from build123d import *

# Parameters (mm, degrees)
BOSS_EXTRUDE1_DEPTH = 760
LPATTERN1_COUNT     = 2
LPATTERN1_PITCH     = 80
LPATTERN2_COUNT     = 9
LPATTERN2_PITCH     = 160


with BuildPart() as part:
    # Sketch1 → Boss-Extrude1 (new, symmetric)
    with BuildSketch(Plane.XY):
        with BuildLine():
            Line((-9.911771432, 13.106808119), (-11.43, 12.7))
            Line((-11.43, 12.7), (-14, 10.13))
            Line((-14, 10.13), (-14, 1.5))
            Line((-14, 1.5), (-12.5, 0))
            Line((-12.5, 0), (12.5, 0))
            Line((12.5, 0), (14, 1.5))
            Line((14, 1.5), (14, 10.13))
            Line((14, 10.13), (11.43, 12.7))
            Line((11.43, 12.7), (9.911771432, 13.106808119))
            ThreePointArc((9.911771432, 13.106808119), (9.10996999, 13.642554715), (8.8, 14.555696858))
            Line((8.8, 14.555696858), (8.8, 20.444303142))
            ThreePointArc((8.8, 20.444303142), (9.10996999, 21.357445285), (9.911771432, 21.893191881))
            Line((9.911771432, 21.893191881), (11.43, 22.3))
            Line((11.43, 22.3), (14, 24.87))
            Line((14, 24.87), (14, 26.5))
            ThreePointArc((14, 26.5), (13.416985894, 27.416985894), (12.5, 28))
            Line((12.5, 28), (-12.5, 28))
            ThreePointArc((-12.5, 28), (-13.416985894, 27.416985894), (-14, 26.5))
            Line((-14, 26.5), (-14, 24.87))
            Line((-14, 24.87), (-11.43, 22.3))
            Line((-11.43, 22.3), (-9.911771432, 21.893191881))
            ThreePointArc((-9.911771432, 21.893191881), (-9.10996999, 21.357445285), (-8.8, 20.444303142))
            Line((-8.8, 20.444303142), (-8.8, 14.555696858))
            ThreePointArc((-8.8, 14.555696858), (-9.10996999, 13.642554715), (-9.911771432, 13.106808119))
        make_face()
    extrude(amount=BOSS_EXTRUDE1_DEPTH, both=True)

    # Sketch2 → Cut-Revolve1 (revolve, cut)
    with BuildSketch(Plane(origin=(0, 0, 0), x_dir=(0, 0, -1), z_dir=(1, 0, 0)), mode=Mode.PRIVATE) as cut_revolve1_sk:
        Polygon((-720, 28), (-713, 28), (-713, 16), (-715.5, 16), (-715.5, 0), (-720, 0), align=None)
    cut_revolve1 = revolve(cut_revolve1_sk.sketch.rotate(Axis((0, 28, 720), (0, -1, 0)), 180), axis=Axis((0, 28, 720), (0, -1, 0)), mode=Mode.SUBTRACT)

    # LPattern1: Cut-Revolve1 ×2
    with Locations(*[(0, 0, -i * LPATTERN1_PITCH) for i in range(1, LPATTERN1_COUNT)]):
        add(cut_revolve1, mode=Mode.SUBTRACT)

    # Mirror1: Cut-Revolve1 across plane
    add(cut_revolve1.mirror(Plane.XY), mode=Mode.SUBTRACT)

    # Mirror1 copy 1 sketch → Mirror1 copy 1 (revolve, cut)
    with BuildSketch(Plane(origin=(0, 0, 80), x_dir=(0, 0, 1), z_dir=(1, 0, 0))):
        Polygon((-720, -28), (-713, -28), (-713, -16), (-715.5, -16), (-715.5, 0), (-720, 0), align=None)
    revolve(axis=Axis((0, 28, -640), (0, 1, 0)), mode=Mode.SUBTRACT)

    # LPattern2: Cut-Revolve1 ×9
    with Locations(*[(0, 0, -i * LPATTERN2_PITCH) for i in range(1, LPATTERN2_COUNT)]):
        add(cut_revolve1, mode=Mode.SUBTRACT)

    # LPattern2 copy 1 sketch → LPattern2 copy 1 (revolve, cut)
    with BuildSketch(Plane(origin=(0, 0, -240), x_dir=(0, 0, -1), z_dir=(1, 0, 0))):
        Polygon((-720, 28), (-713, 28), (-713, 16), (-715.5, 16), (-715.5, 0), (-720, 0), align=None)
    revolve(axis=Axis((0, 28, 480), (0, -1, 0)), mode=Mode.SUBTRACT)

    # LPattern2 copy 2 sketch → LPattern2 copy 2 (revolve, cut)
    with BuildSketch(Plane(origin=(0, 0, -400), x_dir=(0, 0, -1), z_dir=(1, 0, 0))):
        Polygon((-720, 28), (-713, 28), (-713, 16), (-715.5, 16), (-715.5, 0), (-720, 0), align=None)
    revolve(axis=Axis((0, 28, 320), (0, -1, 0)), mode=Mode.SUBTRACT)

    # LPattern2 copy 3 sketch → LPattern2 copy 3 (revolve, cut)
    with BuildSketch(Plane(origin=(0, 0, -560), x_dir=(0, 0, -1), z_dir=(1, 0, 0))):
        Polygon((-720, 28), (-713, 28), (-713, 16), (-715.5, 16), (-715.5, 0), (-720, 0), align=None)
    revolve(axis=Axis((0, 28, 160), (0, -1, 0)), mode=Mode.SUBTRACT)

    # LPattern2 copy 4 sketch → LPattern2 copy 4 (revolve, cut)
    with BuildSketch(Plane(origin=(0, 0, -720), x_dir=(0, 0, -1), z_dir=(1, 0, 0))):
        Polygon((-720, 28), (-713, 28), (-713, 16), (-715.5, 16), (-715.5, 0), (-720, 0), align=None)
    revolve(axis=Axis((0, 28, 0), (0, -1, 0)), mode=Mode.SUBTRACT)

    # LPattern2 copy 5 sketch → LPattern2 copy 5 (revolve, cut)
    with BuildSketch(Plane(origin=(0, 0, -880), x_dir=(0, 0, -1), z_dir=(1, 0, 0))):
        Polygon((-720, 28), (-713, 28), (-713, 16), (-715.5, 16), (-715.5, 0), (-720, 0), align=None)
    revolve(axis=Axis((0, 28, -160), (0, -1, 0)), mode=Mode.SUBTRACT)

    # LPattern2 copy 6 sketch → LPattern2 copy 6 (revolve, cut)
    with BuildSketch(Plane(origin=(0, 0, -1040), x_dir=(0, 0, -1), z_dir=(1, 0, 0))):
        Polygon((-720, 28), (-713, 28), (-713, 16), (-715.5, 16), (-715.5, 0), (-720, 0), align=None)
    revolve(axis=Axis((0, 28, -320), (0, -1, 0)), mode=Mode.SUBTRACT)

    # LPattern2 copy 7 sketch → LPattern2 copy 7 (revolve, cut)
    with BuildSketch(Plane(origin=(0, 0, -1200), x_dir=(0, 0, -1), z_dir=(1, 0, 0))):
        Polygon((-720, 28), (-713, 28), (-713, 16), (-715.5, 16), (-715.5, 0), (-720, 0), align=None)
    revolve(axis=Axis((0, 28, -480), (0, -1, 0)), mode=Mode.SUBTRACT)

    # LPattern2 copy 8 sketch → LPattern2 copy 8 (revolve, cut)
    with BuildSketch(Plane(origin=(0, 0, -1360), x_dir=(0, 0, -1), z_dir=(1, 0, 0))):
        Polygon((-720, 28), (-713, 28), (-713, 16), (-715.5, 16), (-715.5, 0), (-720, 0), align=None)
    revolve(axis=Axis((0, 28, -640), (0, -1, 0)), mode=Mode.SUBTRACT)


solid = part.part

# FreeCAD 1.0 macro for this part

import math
import FreeCAD as App
import Part
import Sketcher

V = App.Vector
Q = App.Units.Quantity

doc = App.newDocument("Part")
body = doc.addObject("PartDesign::Body", "Body")

# Sketch on XY plane
sketch1 = body.newObject("Sketcher::SketchObject", "Sketch")
sketch1.AttachmentSupport = (doc.getObject("XY_Plane"), [""])
sketch1.MapMode = "FlatFace"
sketch1.addGeometry([
    Part.LineSegment(V(-9.911771, 13.106808, 0), V(-11.43, 12.7, 0)),  # 0
    Part.LineSegment(V(-11.43, 12.7, 0), V(-14, 10.13, 0)),  # 1
    Part.LineSegment(V(-14, 10.13, 0), V(-14, 1.5, 0)),  # 2
    Part.LineSegment(V(-14, 1.5, 0), V(-12.5, 0, 0)),  # 3
    Part.LineSegment(V(-12.5, 0, 0), V(12.5, 0, 0)),  # 4
    Part.LineSegment(V(12.5, 0, 0), V(14, 1.5, 0)),  # 5
    Part.LineSegment(V(14, 1.5, 0), V(14, 10.13, 0)),  # 6
    Part.LineSegment(V(14, 10.13, 0), V(11.43, 12.7, 0)),  # 7
    Part.LineSegment(V(11.43, 12.7, 0), V(9.911771, 13.106808, 0)),  # 8
    Part.ArcOfCircle(Part.Circle(V(10.3, 14.555697, 0), V(0, 0, 1), 1.5), math.radians(-180), math.radians(-105)),  # 9
    Part.LineSegment(V(8.8, 14.555697, 0), V(8.8, 20.444303, 0)),  # 10
    Part.ArcOfCircle(Part.Circle(V(10.3, 20.444303, 0), V(0, 0, 1), 1.5), math.radians(105), math.radians(180)),  # 11
    Part.LineSegment(V(9.911771, 21.893192, 0), V(11.43, 22.3, 0)),  # 12
    Part.LineSegment(V(11.43, 22.3, 0), V(14, 24.87, 0)),  # 13
    Part.LineSegment(V(14, 24.87, 0), V(14, 26.5, 0)),  # 14
    Part.ArcOfCircle(Part.Circle(V(11.649219, 25.649219, 0), V(0, 0, 1), 2.5), math.radians(19.89591), math.radians(70.10409)),  # 15
    Part.LineSegment(V(12.5, 28, 0), V(-12.5, 28, 0)),  # 16
    Part.ArcOfCircle(Part.Circle(V(-11.649219, 25.649219, 0), V(0, 0, 1), 2.5), math.radians(109.89591), math.radians(160.10409)),  # 17
    Part.LineSegment(V(-14, 26.5, 0), V(-14, 24.87, 0)),  # 18
    Part.LineSegment(V(-14, 24.87, 0), V(-11.43, 22.3, 0)),  # 19
    Part.LineSegment(V(-11.43, 22.3, 0), V(-9.911771, 21.893192, 0)),  # 20
    Part.ArcOfCircle(Part.Circle(V(-10.3, 20.444303, 0), V(0, 0, 1), 1.5), math.radians(0), math.radians(75)),  # 21
    Part.LineSegment(V(-8.8, 20.444303, 0), V(-8.8, 14.555697, 0)),  # 22
    Part.ArcOfCircle(Part.Circle(V(-10.3, 14.555697, 0), V(0, 0, 1), 1.5), math.radians(-75), math.radians(0)),  # 23
], False)
sketch1.addConstraint([
    Sketcher.Constraint("Coincident", 0, 2, 1, 1),
    Sketcher.Constraint("Coincident", 1, 2, 2, 1),
    Sketcher.Constraint("Coincident", 2, 2, 3, 1),
    Sketcher.Constraint("Coincident", 3, 2, 4, 1),
    Sketcher.Constraint("Coincident", 4, 2, 5, 1),
    Sketcher.Constraint("Coincident", 5, 2, 6, 1),
    Sketcher.Constraint("Coincident", 6, 2, 7, 1),
    Sketcher.Constraint("Coincident", 7, 2, 8, 1),
    Sketcher.Constraint("Tangent", 8, 2, 9, 2),
    Sketcher.Constraint("Tangent", 9, 1, 10, 1),
    Sketcher.Constraint("Tangent", 10, 2, 11, 2),
    Sketcher.Constraint("Tangent", 11, 1, 12, 1),
    Sketcher.Constraint("Coincident", 12, 2, 13, 1),
    Sketcher.Constraint("Coincident", 13, 2, 14, 1),
    Sketcher.Constraint("Coincident", 14, 2, 15, 1),
    Sketcher.Constraint("Coincident", 15, 2, 16, 1),
    Sketcher.Constraint("Coincident", 16, 2, 17, 1),
    Sketcher.Constraint("Coincident", 17, 2, 18, 1),
    Sketcher.Constraint("Coincident", 18, 2, 19, 1),
    Sketcher.Constraint("Coincident", 19, 2, 20, 1),
    Sketcher.Constraint("Tangent", 20, 2, 21, 2),
    Sketcher.Constraint("Tangent", 21, 1, 22, 1),
    Sketcher.Constraint("Tangent", 22, 2, 23, 2),
    Sketcher.Constraint("Tangent", 23, 1, 0, 1),
    Sketcher.Constraint("Vertical", 2),
    Sketcher.Constraint("Horizontal", 4),
    Sketcher.Constraint("Vertical", 6),
    Sketcher.Constraint("Vertical", 10),
    Sketcher.Constraint("Vertical", 14),
    Sketcher.Constraint("Horizontal", 16),
    Sketcher.Constraint("Vertical", 18),
    Sketcher.Constraint("Vertical", 22),
    Sketcher.Constraint("Equal", 9, 11),
    Sketcher.Constraint("Equal", 15, 17),
    Sketcher.Constraint("Equal", 11, 21),
    Sketcher.Constraint("Equal", 21, 23),
    Sketcher.Constraint("Symmetric", 3, 2, 4, 2, -1, 1),
    Sketcher.Constraint("Symmetric", 15, 3, 17, 3, -2),
    Sketcher.Constraint("Symmetric", 11, 3, 21, 3, -2),
    Sketcher.Constraint("Symmetric", 2, 2, 5, 2, -2),
    Sketcher.Constraint("Symmetric", 0, 2, 7, 2, -2),
    Sketcher.Constraint("Symmetric", 13, 2, 18, 2, -2),
    Sketcher.Constraint("Symmetric", 12, 2, 19, 2, -2),
    Sketcher.Constraint("Perpendicular", 1, 3),
    Sketcher.Constraint("Perpendicular", 3, 5),
    Sketcher.Constraint("Perpendicular", 5, 7),
    Sketcher.Constraint("Parallel", 0, 12),
    Sketcher.Constraint("Perpendicular", 7, 13),
    Sketcher.Constraint("Parallel", 8, 20),
    Sketcher.Constraint("Vertical", 7, 2, 12, 2),
    Sketcher.Constraint("Vertical", 6, 2, 13, 2),
    Sketcher.Constraint("Vertical", 4, 2, 15, 2),
    Sketcher.Constraint("Radius", 9, Q("1.5 mm")),
    Sketcher.Constraint("Radius", 15, Q("2.5 mm")),
    Sketcher.Constraint("DistanceX", 4, 1, 4, 2, Q("25 mm")),
    Sketcher.Constraint("Angle", 0, Q("-165 deg")),
    Sketcher.Constraint("DistanceX", 1, 2, -1, 1, Q("14 mm")),
    Sketcher.Constraint("DistanceY", -1, 1, 15, 2, Q("28 mm")),
    Sketcher.Constraint("DistanceY", 2, 2, 2, 1, Q("8.63 mm")),
    Sketcher.Constraint("DistanceY", 14, 1, 14, 2, Q("1.63 mm")),
    Sketcher.Constraint("DistanceX", -1, 1, 9, 3, Q("10.3 mm")),
    Sketcher.Constraint("DistanceY", -1, 1, 0, 2, Q("12.7 mm")),
    Sketcher.Constraint("DistanceY", -1, 1, 12, 2, Q("22.3 mm")),
])
pad1 = body.newObject("PartDesign::Pad", "Pad")
pad1.Profile = sketch1
pad1.Length = 1520
pad1.Midplane = True

# Sketch on YZ plane
sketch2 = body.newObject("Sketcher::SketchObject", "Sketch001")
sketch2.AttachmentSupport = (doc.getObject("YZ_Plane"), [""])
sketch2.MapMode = "FlatFace"
sketch2.addGeometry([
    Part.LineSegment(V(28, 713, 0), V(28, 720, 0)),  # 0
    Part.LineSegment(V(28, 720, 0), V(0, 720, 0)),  # 1
    Part.LineSegment(V(0, 720, 0), V(0, 715.5, 0)),  # 2
    Part.LineSegment(V(0, 715.5, 0), V(16, 715.5, 0)),  # 3
    Part.LineSegment(V(16, 715.5, 0), V(16, 713, 0)),  # 4
    Part.LineSegment(V(16, 713, 0), V(28, 713, 0)),  # 5
], False)
sketch2.addGeometry(Part.LineSegment(V(28, 720, 0), V(0, 720, 0)), True)  # axis
sketch2.addConstraint([
    Sketcher.Constraint("Coincident", 0, 2, 1, 1),
    Sketcher.Constraint("Coincident", 1, 2, 2, 1),
    Sketcher.Constraint("Coincident", 2, 2, 3, 1),
    Sketcher.Constraint("Coincident", 3, 2, 4, 1),
    Sketcher.Constraint("Coincident", 4, 2, 5, 1),
    Sketcher.Constraint("Coincident", 5, 2, 0, 1),
    Sketcher.Constraint("Vertical", 0),
    Sketcher.Constraint("Horizontal", 1),
    Sketcher.Constraint("Vertical", 2),
    Sketcher.Constraint("Horizontal", 3),
    Sketcher.Constraint("Vertical", 4),
    Sketcher.Constraint("Horizontal", 5),
    Sketcher.Constraint("Horizontal", 6),
    Sketcher.Constraint("Coincident", 6, 1, 0, 2),
    Sketcher.Constraint("PointOnObject", 1, 2, -2),
    Sketcher.Constraint("PointOnObject", 6, 2, -2),
    Sketcher.Constraint("DistanceX", 1, 2, 1, 1, Q("28 mm")),
    Sketcher.Constraint("DistanceX", 3, 1, 3, 2, Q("16 mm")),
    Sketcher.Constraint("DistanceY", 0, 1, 0, 2, Q("7 mm")),
    Sketcher.Constraint("DistanceY", 2, 2, 2, 1, Q("4.5 mm")),
    Sketcher.Constraint("DistanceY", -1, 1, 0, 2, Q("720 mm")),
])
groove = body.newObject("PartDesign::Groove", "Groove")
groove.Profile = sketch2
groove.ReferenceAxis = (sketch2, ["Axis0"])
groove.Angle = 360
doc.recompute()

linearpattern = body.newObject("PartDesign::LinearPattern", "LinearPattern")
linearpattern.Originals = [groove]
linearpattern.Direction = (doc.getObject("Z_Axis"), [""])
linearpattern.Mode = "offset"
linearpattern.Offset = 80
linearpattern.Occurrences = 2
linearpattern.Reversed = True
body.Tip = linearpattern
doc.recompute()

mirrored = body.newObject("PartDesign::Mirrored", "Mirrored")
mirrored.Originals = [groove]
mirrored.MirrorPlane = (doc.getObject("XY_Plane"), [""])
body.Tip = mirrored

# Sketch on YZ plane
sketch3 = body.newObject("Sketcher::SketchObject", "Sketch002")
sketch3.AttachmentSupport = (doc.getObject("YZ_Plane"), [""])
sketch3.MapMode = "FlatFace"
sketch3.addGeometry([
    Part.LineSegment(V(28, -640, 0), V(28, -633, 0)),  # 0
    Part.LineSegment(V(28, -633, 0), V(16, -633, 0)),  # 1
    Part.LineSegment(V(16, -633, 0), V(16, -635.5, 0)),  # 2
    Part.LineSegment(V(16, -635.5, 0), V(0, -635.5, 0)),  # 3
    Part.LineSegment(V(0, -635.5, 0), V(0, -640, 0)),  # 4
    Part.LineSegment(V(0, -640, 0), V(28, -640, 0)),  # 5
], False)
sketch3.addGeometry(Part.LineSegment(V(0, -640, 0), V(28, -640, 0)), True)  # axis
sketch3.addConstraint([
    Sketcher.Constraint("Coincident", 0, 2, 1, 1),
    Sketcher.Constraint("Coincident", 1, 2, 2, 1),
    Sketcher.Constraint("Coincident", 2, 2, 3, 1),
    Sketcher.Constraint("Coincident", 3, 2, 4, 1),
    Sketcher.Constraint("Coincident", 4, 2, 5, 1),
    Sketcher.Constraint("Coincident", 5, 2, 0, 1),
    Sketcher.Constraint("Vertical", 0),
    Sketcher.Constraint("Horizontal", 1),
    Sketcher.Constraint("Vertical", 2),
    Sketcher.Constraint("Horizontal", 3),
    Sketcher.Constraint("Vertical", 4),
    Sketcher.Constraint("Horizontal", 5),
    Sketcher.Constraint("Horizontal", 6),
    Sketcher.Constraint("Coincident", 6, 1, 4, 2),
    Sketcher.Constraint("PointOnObject", 3, 2, -2),
    Sketcher.Constraint("Vertical", 0, 2, 6, 2),
    Sketcher.Constraint("DistanceX", 1, 2, 1, 1, Q("12 mm")),
    Sketcher.Constraint("DistanceX", 3, 2, 3, 1, Q("16 mm")),
    Sketcher.Constraint("DistanceY", 0, 1, 0, 2, Q("7 mm")),
    Sketcher.Constraint("DistanceY", 2, 2, 2, 1, Q("2.5 mm")),
    Sketcher.Constraint("DistanceY", 0, 2, -1, 1, Q("633 mm")),
])
groove2 = body.newObject("PartDesign::Groove", "Groove001")
groove2.Profile = sketch3
groove2.ReferenceAxis = (sketch3, ["Axis0"])
groove2.Angle = 360
doc.recompute()

linearpattern2 = body.newObject("PartDesign::LinearPattern", "LinearPattern001")
linearpattern2.Originals = [groove]
linearpattern2.Direction = (doc.getObject("Z_Axis"), [""])
linearpattern2.Mode = "offset"
linearpattern2.Offset = 160
linearpattern2.Occurrences = 9
linearpattern2.Reversed = True
body.Tip = linearpattern2

# Sketch on YZ plane
sketch4 = body.newObject("Sketcher::SketchObject", "Sketch003")
sketch4.AttachmentSupport = (doc.getObject("YZ_Plane"), [""])
sketch4.MapMode = "FlatFace"
sketch4.addGeometry([
    Part.LineSegment(V(28, 473, 0), V(28, 480, 0)),  # 0
    Part.LineSegment(V(28, 480, 0), V(0, 480, 0)),  # 1
    Part.LineSegment(V(0, 480, 0), V(0, 475.5, 0)),  # 2
    Part.LineSegment(V(0, 475.5, 0), V(16, 475.5, 0)),  # 3
    Part.LineSegment(V(16, 475.5, 0), V(16, 473, 0)),  # 4
    Part.LineSegment(V(16, 473, 0), V(28, 473, 0)),  # 5
], False)
sketch4.addGeometry(Part.LineSegment(V(28, 480, 0), V(0, 480, 0)), True)  # axis
sketch4.addConstraint([
    Sketcher.Constraint("Coincident", 0, 2, 1, 1),
    Sketcher.Constraint("Coincident", 1, 2, 2, 1),
    Sketcher.Constraint("Coincident", 2, 2, 3, 1),
    Sketcher.Constraint("Coincident", 3, 2, 4, 1),
    Sketcher.Constraint("Coincident", 4, 2, 5, 1),
    Sketcher.Constraint("Coincident", 5, 2, 0, 1),
    Sketcher.Constraint("Vertical", 0),
    Sketcher.Constraint("Horizontal", 1),
    Sketcher.Constraint("Vertical", 2),
    Sketcher.Constraint("Horizontal", 3),
    Sketcher.Constraint("Vertical", 4),
    Sketcher.Constraint("Horizontal", 5),
    Sketcher.Constraint("Horizontal", 6),
    Sketcher.Constraint("Coincident", 6, 1, 0, 2),
    Sketcher.Constraint("PointOnObject", 1, 2, -2),
    Sketcher.Constraint("PointOnObject", 6, 2, -2),
    Sketcher.Constraint("DistanceX", 1, 2, 1, 1, Q("28 mm")),
    Sketcher.Constraint("DistanceX", 3, 1, 3, 2, Q("16 mm")),
    Sketcher.Constraint("DistanceY", 0, 1, 0, 2, Q("7 mm")),
    Sketcher.Constraint("DistanceY", 2, 2, 2, 1, Q("4.5 mm")),
    Sketcher.Constraint("DistanceY", -1, 1, 0, 2, Q("480 mm")),
])
groove3 = body.newObject("PartDesign::Groove", "Groove002")
groove3.Profile = sketch4
groove3.ReferenceAxis = (sketch4, ["Axis0"])
groove3.Angle = 360

# Sketch on YZ plane
sketch5 = body.newObject("Sketcher::SketchObject", "Sketch004")
sketch5.AttachmentSupport = (doc.getObject("YZ_Plane"), [""])
sketch5.MapMode = "FlatFace"
sketch5.addGeometry([
    Part.LineSegment(V(28, 313, 0), V(28, 320, 0)),  # 0
    Part.LineSegment(V(28, 320, 0), V(0, 320, 0)),  # 1
    Part.LineSegment(V(0, 320, 0), V(0, 315.5, 0)),  # 2
    Part.LineSegment(V(0, 315.5, 0), V(16, 315.5, 0)),  # 3
    Part.LineSegment(V(16, 315.5, 0), V(16, 313, 0)),  # 4
    Part.LineSegment(V(16, 313, 0), V(28, 313, 0)),  # 5
], False)
sketch5.addGeometry(Part.LineSegment(V(28, 320, 0), V(0, 320, 0)), True)  # axis
sketch5.addConstraint([
    Sketcher.Constraint("Coincident", 0, 2, 1, 1),
    Sketcher.Constraint("Coincident", 1, 2, 2, 1),
    Sketcher.Constraint("Coincident", 2, 2, 3, 1),
    Sketcher.Constraint("Coincident", 3, 2, 4, 1),
    Sketcher.Constraint("Coincident", 4, 2, 5, 1),
    Sketcher.Constraint("Coincident", 5, 2, 0, 1),
    Sketcher.Constraint("Vertical", 0),
    Sketcher.Constraint("Horizontal", 1),
    Sketcher.Constraint("Vertical", 2),
    Sketcher.Constraint("Horizontal", 3),
    Sketcher.Constraint("Vertical", 4),
    Sketcher.Constraint("Horizontal", 5),
    Sketcher.Constraint("Horizontal", 6),
    Sketcher.Constraint("Coincident", 6, 1, 0, 2),
    Sketcher.Constraint("PointOnObject", 1, 2, -2),
    Sketcher.Constraint("PointOnObject", 6, 2, -2),
    Sketcher.Constraint("DistanceX", 1, 2, 1, 1, Q("28 mm")),
    Sketcher.Constraint("DistanceX", 3, 1, 3, 2, Q("16 mm")),
    Sketcher.Constraint("DistanceY", 0, 1, 0, 2, Q("7 mm")),
    Sketcher.Constraint("DistanceY", 2, 2, 2, 1, Q("4.5 mm")),
    Sketcher.Constraint("DistanceY", -1, 1, 0, 2, Q("320 mm")),
])
groove4 = body.newObject("PartDesign::Groove", "Groove003")
groove4.Profile = sketch5
groove4.ReferenceAxis = (sketch5, ["Axis0"])
groove4.Angle = 360

# Sketch on YZ plane
sketch6 = body.newObject("Sketcher::SketchObject", "Sketch005")
sketch6.AttachmentSupport = (doc.getObject("YZ_Plane"), [""])
sketch6.MapMode = "FlatFace"
sketch6.addGeometry([
    Part.LineSegment(V(28, 153, 0), V(28, 160, 0)),  # 0
    Part.LineSegment(V(28, 160, 0), V(0, 160, 0)),  # 1
    Part.LineSegment(V(0, 160, 0), V(0, 155.5, 0)),  # 2
    Part.LineSegment(V(0, 155.5, 0), V(16, 155.5, 0)),  # 3
    Part.LineSegment(V(16, 155.5, 0), V(16, 153, 0)),  # 4
    Part.LineSegment(V(16, 153, 0), V(28, 153, 0)),  # 5
], False)
sketch6.addGeometry(Part.LineSegment(V(28, 160, 0), V(0, 160, 0)), True)  # axis
sketch6.addConstraint([
    Sketcher.Constraint("Coincident", 0, 2, 1, 1),
    Sketcher.Constraint("Coincident", 1, 2, 2, 1),
    Sketcher.Constraint("Coincident", 2, 2, 3, 1),
    Sketcher.Constraint("Coincident", 3, 2, 4, 1),
    Sketcher.Constraint("Coincident", 4, 2, 5, 1),
    Sketcher.Constraint("Coincident", 5, 2, 0, 1),
    Sketcher.Constraint("Vertical", 0),
    Sketcher.Constraint("Horizontal", 1),
    Sketcher.Constraint("Vertical", 2),
    Sketcher.Constraint("Horizontal", 3),
    Sketcher.Constraint("Vertical", 4),
    Sketcher.Constraint("Horizontal", 5),
    Sketcher.Constraint("Horizontal", 6),
    Sketcher.Constraint("Coincident", 6, 1, 0, 2),
    Sketcher.Constraint("PointOnObject", 1, 2, -2),
    Sketcher.Constraint("PointOnObject", 6, 2, -2),
    Sketcher.Constraint("DistanceX", 1, 2, 1, 1, Q("28 mm")),
    Sketcher.Constraint("DistanceX", 3, 1, 3, 2, Q("16 mm")),
    Sketcher.Constraint("DistanceY", 0, 1, 0, 2, Q("7 mm")),
    Sketcher.Constraint("DistanceY", 2, 2, 2, 1, Q("4.5 mm")),
    Sketcher.Constraint("DistanceY", -1, 1, 0, 2, Q("160 mm")),
])
groove5 = body.newObject("PartDesign::Groove", "Groove004")
groove5.Profile = sketch6
groove5.ReferenceAxis = (sketch6, ["Axis0"])
groove5.Angle = 360

# Sketch on YZ plane
sketch7 = body.newObject("Sketcher::SketchObject", "Sketch006")
sketch7.AttachmentSupport = (doc.getObject("YZ_Plane"), [""])
sketch7.MapMode = "FlatFace"
sketch7.addGeometry([
    Part.LineSegment(V(28, -7, 0), V(28, 0, 0)),  # 0
    Part.LineSegment(V(28, 0, 0), V(0, 0, 0)),  # 1
    Part.LineSegment(V(0, 0, 0), V(0, -4.5, 0)),  # 2
    Part.LineSegment(V(0, -4.5, 0), V(16, -4.5, 0)),  # 3
    Part.LineSegment(V(16, -4.5, 0), V(16, -7, 0)),  # 4
    Part.LineSegment(V(16, -7, 0), V(28, -7, 0)),  # 5
], False)
sketch7.addConstraint([
    Sketcher.Constraint("Coincident", 0, 2, 1, 1),
    Sketcher.Constraint("Coincident", 1, 2, 2, 1),
    Sketcher.Constraint("Coincident", 2, 2, 3, 1),
    Sketcher.Constraint("Coincident", 3, 2, 4, 1),
    Sketcher.Constraint("Coincident", 4, 2, 5, 1),
    Sketcher.Constraint("Coincident", 5, 2, 0, 1),
    Sketcher.Constraint("Vertical", 0),
    Sketcher.Constraint("Horizontal", 1),
    Sketcher.Constraint("Vertical", 2),
    Sketcher.Constraint("Horizontal", 3),
    Sketcher.Constraint("Vertical", 4),
    Sketcher.Constraint("Horizontal", 5),
    Sketcher.Constraint("Coincident", 1, 2, -1, 1),
    Sketcher.Constraint("DistanceX", 1, 2, 1, 1, Q("28 mm")),
    Sketcher.Constraint("DistanceX", 3, 1, 3, 2, Q("16 mm")),
    Sketcher.Constraint("DistanceY", 0, 1, 0, 2, Q("7 mm")),
    Sketcher.Constraint("DistanceY", 2, 2, 2, 1, Q("4.5 mm")),
])
groove6 = body.newObject("PartDesign::Groove", "Groove005")
groove6.Profile = sketch7
groove6.ReferenceAxis = (sketch7, ["H_Axis"])
groove6.Angle = 360

# Sketch on YZ plane
sketch8 = body.newObject("Sketcher::SketchObject", "Sketch007")
sketch8.AttachmentSupport = (doc.getObject("YZ_Plane"), [""])
sketch8.MapMode = "FlatFace"
sketch8.addGeometry([
    Part.LineSegment(V(28, -167, 0), V(28, -160, 0)),  # 0
    Part.LineSegment(V(28, -160, 0), V(0, -160, 0)),  # 1
    Part.LineSegment(V(0, -160, 0), V(0, -164.5, 0)),  # 2
    Part.LineSegment(V(0, -164.5, 0), V(16, -164.5, 0)),  # 3
    Part.LineSegment(V(16, -164.5, 0), V(16, -167, 0)),  # 4
    Part.LineSegment(V(16, -167, 0), V(28, -167, 0)),  # 5
], False)
sketch8.addGeometry(Part.LineSegment(V(28, -160, 0), V(0, -160, 0)), True)  # axis
sketch8.addConstraint([
    Sketcher.Constraint("Coincident", 0, 2, 1, 1),
    Sketcher.Constraint("Coincident", 1, 2, 2, 1),
    Sketcher.Constraint("Coincident", 2, 2, 3, 1),
    Sketcher.Constraint("Coincident", 3, 2, 4, 1),
    Sketcher.Constraint("Coincident", 4, 2, 5, 1),
    Sketcher.Constraint("Coincident", 5, 2, 0, 1),
    Sketcher.Constraint("Vertical", 0),
    Sketcher.Constraint("Horizontal", 1),
    Sketcher.Constraint("Vertical", 2),
    Sketcher.Constraint("Horizontal", 3),
    Sketcher.Constraint("Vertical", 4),
    Sketcher.Constraint("Horizontal", 5),
    Sketcher.Constraint("Horizontal", 6),
    Sketcher.Constraint("Coincident", 6, 1, 0, 2),
    Sketcher.Constraint("PointOnObject", 1, 2, -2),
    Sketcher.Constraint("PointOnObject", 6, 2, -2),
    Sketcher.Constraint("DistanceX", 1, 2, 1, 1, Q("28 mm")),
    Sketcher.Constraint("DistanceX", 3, 1, 3, 2, Q("16 mm")),
    Sketcher.Constraint("DistanceY", 0, 1, 0, 2, Q("7 mm")),
    Sketcher.Constraint("DistanceY", 2, 2, 2, 1, Q("4.5 mm")),
    Sketcher.Constraint("DistanceY", 0, 2, -1, 1, Q("160 mm")),
])
groove7 = body.newObject("PartDesign::Groove", "Groove006")
groove7.Profile = sketch8
groove7.ReferenceAxis = (sketch8, ["Axis0"])
groove7.Angle = 360

# Sketch on YZ plane
sketch9 = body.newObject("Sketcher::SketchObject", "Sketch008")
sketch9.AttachmentSupport = (doc.getObject("YZ_Plane"), [""])
sketch9.MapMode = "FlatFace"
sketch9.addGeometry([
    Part.LineSegment(V(28, -327, 0), V(28, -320, 0)),  # 0
    Part.LineSegment(V(28, -320, 0), V(0, -320, 0)),  # 1
    Part.LineSegment(V(0, -320, 0), V(0, -324.5, 0)),  # 2
    Part.LineSegment(V(0, -324.5, 0), V(16, -324.5, 0)),  # 3
    Part.LineSegment(V(16, -324.5, 0), V(16, -327, 0)),  # 4
    Part.LineSegment(V(16, -327, 0), V(28, -327, 0)),  # 5
], False)
sketch9.addGeometry(Part.LineSegment(V(28, -320, 0), V(0, -320, 0)), True)  # axis
sketch9.addConstraint([
    Sketcher.Constraint("Coincident", 0, 2, 1, 1),
    Sketcher.Constraint("Coincident", 1, 2, 2, 1),
    Sketcher.Constraint("Coincident", 2, 2, 3, 1),
    Sketcher.Constraint("Coincident", 3, 2, 4, 1),
    Sketcher.Constraint("Coincident", 4, 2, 5, 1),
    Sketcher.Constraint("Coincident", 5, 2, 0, 1),
    Sketcher.Constraint("Vertical", 0),
    Sketcher.Constraint("Horizontal", 1),
    Sketcher.Constraint("Vertical", 2),
    Sketcher.Constraint("Horizontal", 3),
    Sketcher.Constraint("Vertical", 4),
    Sketcher.Constraint("Horizontal", 5),
    Sketcher.Constraint("Horizontal", 6),
    Sketcher.Constraint("Coincident", 6, 1, 0, 2),
    Sketcher.Constraint("PointOnObject", 1, 2, -2),
    Sketcher.Constraint("PointOnObject", 6, 2, -2),
    Sketcher.Constraint("DistanceX", 1, 2, 1, 1, Q("28 mm")),
    Sketcher.Constraint("DistanceX", 3, 1, 3, 2, Q("16 mm")),
    Sketcher.Constraint("DistanceY", 0, 1, 0, 2, Q("7 mm")),
    Sketcher.Constraint("DistanceY", 2, 2, 2, 1, Q("4.5 mm")),
    Sketcher.Constraint("DistanceY", 0, 2, -1, 1, Q("320 mm")),
])
groove8 = body.newObject("PartDesign::Groove", "Groove007")
groove8.Profile = sketch9
groove8.ReferenceAxis = (sketch9, ["Axis0"])
groove8.Angle = 360

# Sketch on YZ plane
sketch10 = body.newObject("Sketcher::SketchObject", "Sketch009")
sketch10.AttachmentSupport = (doc.getObject("YZ_Plane"), [""])
sketch10.MapMode = "FlatFace"
sketch10.addGeometry([
    Part.LineSegment(V(28, -487, 0), V(28, -480, 0)),  # 0
    Part.LineSegment(V(28, -480, 0), V(0, -480, 0)),  # 1
    Part.LineSegment(V(0, -480, 0), V(0, -484.5, 0)),  # 2
    Part.LineSegment(V(0, -484.5, 0), V(16, -484.5, 0)),  # 3
    Part.LineSegment(V(16, -484.5, 0), V(16, -487, 0)),  # 4
    Part.LineSegment(V(16, -487, 0), V(28, -487, 0)),  # 5
], False)
sketch10.addGeometry(Part.LineSegment(V(28, -480, 0), V(0, -480, 0)), True)  # axis
sketch10.addConstraint([
    Sketcher.Constraint("Coincident", 0, 2, 1, 1),
    Sketcher.Constraint("Coincident", 1, 2, 2, 1),
    Sketcher.Constraint("Coincident", 2, 2, 3, 1),
    Sketcher.Constraint("Coincident", 3, 2, 4, 1),
    Sketcher.Constraint("Coincident", 4, 2, 5, 1),
    Sketcher.Constraint("Coincident", 5, 2, 0, 1),
    Sketcher.Constraint("Vertical", 0),
    Sketcher.Constraint("Horizontal", 1),
    Sketcher.Constraint("Vertical", 2),
    Sketcher.Constraint("Horizontal", 3),
    Sketcher.Constraint("Vertical", 4),
    Sketcher.Constraint("Horizontal", 5),
    Sketcher.Constraint("Horizontal", 6),
    Sketcher.Constraint("Coincident", 6, 1, 0, 2),
    Sketcher.Constraint("PointOnObject", 1, 2, -2),
    Sketcher.Constraint("PointOnObject", 6, 2, -2),
    Sketcher.Constraint("DistanceX", 1, 2, 1, 1, Q("28 mm")),
    Sketcher.Constraint("DistanceX", 3, 1, 3, 2, Q("16 mm")),
    Sketcher.Constraint("DistanceY", 0, 1, 0, 2, Q("7 mm")),
    Sketcher.Constraint("DistanceY", 2, 2, 2, 1, Q("4.5 mm")),
    Sketcher.Constraint("DistanceY", 0, 2, -1, 1, Q("480 mm")),
])
groove9 = body.newObject("PartDesign::Groove", "Groove008")
groove9.Profile = sketch10
groove9.ReferenceAxis = (sketch10, ["Axis0"])
groove9.Angle = 360

# Sketch on YZ plane
sketch11 = body.newObject("Sketcher::SketchObject", "Sketch010")
sketch11.AttachmentSupport = (doc.getObject("YZ_Plane"), [""])
sketch11.MapMode = "FlatFace"
sketch11.addGeometry([
    Part.LineSegment(V(28, -647, 0), V(28, -640, 0)),  # 0
    Part.LineSegment(V(28, -640, 0), V(0, -640, 0)),  # 1
    Part.LineSegment(V(0, -640, 0), V(0, -644.5, 0)),  # 2
    Part.LineSegment(V(0, -644.5, 0), V(16, -644.5, 0)),  # 3
    Part.LineSegment(V(16, -644.5, 0), V(16, -647, 0)),  # 4
    Part.LineSegment(V(16, -647, 0), V(28, -647, 0)),  # 5
], False)
sketch11.addGeometry(Part.LineSegment(V(28, -640, 0), V(0, -640, 0)), True)  # axis
sketch11.addConstraint([
    Sketcher.Constraint("Coincident", 0, 2, 1, 1),
    Sketcher.Constraint("Coincident", 1, 2, 2, 1),
    Sketcher.Constraint("Coincident", 2, 2, 3, 1),
    Sketcher.Constraint("Coincident", 3, 2, 4, 1),
    Sketcher.Constraint("Coincident", 4, 2, 5, 1),
    Sketcher.Constraint("Coincident", 5, 2, 0, 1),
    Sketcher.Constraint("Vertical", 0),
    Sketcher.Constraint("Horizontal", 1),
    Sketcher.Constraint("Vertical", 2),
    Sketcher.Constraint("Horizontal", 3),
    Sketcher.Constraint("Vertical", 4),
    Sketcher.Constraint("Horizontal", 5),
    Sketcher.Constraint("Horizontal", 6),
    Sketcher.Constraint("Coincident", 6, 1, 0, 2),
    Sketcher.Constraint("PointOnObject", 1, 2, -2),
    Sketcher.Constraint("PointOnObject", 6, 2, -2),
    Sketcher.Constraint("DistanceX", 1, 2, 1, 1, Q("28 mm")),
    Sketcher.Constraint("DistanceX", 3, 1, 3, 2, Q("16 mm")),
    Sketcher.Constraint("DistanceY", 0, 1, 0, 2, Q("7 mm")),
    Sketcher.Constraint("DistanceY", 2, 2, 2, 1, Q("4.5 mm")),
    Sketcher.Constraint("DistanceY", 0, 2, -1, 1, Q("640 mm")),
])
groove10 = body.newObject("PartDesign::Groove", "Groove009")
groove10.Profile = sketch11
groove10.ReferenceAxis = (sketch11, ["Axis0"])
groove10.Angle = 360

doc.recompute()
